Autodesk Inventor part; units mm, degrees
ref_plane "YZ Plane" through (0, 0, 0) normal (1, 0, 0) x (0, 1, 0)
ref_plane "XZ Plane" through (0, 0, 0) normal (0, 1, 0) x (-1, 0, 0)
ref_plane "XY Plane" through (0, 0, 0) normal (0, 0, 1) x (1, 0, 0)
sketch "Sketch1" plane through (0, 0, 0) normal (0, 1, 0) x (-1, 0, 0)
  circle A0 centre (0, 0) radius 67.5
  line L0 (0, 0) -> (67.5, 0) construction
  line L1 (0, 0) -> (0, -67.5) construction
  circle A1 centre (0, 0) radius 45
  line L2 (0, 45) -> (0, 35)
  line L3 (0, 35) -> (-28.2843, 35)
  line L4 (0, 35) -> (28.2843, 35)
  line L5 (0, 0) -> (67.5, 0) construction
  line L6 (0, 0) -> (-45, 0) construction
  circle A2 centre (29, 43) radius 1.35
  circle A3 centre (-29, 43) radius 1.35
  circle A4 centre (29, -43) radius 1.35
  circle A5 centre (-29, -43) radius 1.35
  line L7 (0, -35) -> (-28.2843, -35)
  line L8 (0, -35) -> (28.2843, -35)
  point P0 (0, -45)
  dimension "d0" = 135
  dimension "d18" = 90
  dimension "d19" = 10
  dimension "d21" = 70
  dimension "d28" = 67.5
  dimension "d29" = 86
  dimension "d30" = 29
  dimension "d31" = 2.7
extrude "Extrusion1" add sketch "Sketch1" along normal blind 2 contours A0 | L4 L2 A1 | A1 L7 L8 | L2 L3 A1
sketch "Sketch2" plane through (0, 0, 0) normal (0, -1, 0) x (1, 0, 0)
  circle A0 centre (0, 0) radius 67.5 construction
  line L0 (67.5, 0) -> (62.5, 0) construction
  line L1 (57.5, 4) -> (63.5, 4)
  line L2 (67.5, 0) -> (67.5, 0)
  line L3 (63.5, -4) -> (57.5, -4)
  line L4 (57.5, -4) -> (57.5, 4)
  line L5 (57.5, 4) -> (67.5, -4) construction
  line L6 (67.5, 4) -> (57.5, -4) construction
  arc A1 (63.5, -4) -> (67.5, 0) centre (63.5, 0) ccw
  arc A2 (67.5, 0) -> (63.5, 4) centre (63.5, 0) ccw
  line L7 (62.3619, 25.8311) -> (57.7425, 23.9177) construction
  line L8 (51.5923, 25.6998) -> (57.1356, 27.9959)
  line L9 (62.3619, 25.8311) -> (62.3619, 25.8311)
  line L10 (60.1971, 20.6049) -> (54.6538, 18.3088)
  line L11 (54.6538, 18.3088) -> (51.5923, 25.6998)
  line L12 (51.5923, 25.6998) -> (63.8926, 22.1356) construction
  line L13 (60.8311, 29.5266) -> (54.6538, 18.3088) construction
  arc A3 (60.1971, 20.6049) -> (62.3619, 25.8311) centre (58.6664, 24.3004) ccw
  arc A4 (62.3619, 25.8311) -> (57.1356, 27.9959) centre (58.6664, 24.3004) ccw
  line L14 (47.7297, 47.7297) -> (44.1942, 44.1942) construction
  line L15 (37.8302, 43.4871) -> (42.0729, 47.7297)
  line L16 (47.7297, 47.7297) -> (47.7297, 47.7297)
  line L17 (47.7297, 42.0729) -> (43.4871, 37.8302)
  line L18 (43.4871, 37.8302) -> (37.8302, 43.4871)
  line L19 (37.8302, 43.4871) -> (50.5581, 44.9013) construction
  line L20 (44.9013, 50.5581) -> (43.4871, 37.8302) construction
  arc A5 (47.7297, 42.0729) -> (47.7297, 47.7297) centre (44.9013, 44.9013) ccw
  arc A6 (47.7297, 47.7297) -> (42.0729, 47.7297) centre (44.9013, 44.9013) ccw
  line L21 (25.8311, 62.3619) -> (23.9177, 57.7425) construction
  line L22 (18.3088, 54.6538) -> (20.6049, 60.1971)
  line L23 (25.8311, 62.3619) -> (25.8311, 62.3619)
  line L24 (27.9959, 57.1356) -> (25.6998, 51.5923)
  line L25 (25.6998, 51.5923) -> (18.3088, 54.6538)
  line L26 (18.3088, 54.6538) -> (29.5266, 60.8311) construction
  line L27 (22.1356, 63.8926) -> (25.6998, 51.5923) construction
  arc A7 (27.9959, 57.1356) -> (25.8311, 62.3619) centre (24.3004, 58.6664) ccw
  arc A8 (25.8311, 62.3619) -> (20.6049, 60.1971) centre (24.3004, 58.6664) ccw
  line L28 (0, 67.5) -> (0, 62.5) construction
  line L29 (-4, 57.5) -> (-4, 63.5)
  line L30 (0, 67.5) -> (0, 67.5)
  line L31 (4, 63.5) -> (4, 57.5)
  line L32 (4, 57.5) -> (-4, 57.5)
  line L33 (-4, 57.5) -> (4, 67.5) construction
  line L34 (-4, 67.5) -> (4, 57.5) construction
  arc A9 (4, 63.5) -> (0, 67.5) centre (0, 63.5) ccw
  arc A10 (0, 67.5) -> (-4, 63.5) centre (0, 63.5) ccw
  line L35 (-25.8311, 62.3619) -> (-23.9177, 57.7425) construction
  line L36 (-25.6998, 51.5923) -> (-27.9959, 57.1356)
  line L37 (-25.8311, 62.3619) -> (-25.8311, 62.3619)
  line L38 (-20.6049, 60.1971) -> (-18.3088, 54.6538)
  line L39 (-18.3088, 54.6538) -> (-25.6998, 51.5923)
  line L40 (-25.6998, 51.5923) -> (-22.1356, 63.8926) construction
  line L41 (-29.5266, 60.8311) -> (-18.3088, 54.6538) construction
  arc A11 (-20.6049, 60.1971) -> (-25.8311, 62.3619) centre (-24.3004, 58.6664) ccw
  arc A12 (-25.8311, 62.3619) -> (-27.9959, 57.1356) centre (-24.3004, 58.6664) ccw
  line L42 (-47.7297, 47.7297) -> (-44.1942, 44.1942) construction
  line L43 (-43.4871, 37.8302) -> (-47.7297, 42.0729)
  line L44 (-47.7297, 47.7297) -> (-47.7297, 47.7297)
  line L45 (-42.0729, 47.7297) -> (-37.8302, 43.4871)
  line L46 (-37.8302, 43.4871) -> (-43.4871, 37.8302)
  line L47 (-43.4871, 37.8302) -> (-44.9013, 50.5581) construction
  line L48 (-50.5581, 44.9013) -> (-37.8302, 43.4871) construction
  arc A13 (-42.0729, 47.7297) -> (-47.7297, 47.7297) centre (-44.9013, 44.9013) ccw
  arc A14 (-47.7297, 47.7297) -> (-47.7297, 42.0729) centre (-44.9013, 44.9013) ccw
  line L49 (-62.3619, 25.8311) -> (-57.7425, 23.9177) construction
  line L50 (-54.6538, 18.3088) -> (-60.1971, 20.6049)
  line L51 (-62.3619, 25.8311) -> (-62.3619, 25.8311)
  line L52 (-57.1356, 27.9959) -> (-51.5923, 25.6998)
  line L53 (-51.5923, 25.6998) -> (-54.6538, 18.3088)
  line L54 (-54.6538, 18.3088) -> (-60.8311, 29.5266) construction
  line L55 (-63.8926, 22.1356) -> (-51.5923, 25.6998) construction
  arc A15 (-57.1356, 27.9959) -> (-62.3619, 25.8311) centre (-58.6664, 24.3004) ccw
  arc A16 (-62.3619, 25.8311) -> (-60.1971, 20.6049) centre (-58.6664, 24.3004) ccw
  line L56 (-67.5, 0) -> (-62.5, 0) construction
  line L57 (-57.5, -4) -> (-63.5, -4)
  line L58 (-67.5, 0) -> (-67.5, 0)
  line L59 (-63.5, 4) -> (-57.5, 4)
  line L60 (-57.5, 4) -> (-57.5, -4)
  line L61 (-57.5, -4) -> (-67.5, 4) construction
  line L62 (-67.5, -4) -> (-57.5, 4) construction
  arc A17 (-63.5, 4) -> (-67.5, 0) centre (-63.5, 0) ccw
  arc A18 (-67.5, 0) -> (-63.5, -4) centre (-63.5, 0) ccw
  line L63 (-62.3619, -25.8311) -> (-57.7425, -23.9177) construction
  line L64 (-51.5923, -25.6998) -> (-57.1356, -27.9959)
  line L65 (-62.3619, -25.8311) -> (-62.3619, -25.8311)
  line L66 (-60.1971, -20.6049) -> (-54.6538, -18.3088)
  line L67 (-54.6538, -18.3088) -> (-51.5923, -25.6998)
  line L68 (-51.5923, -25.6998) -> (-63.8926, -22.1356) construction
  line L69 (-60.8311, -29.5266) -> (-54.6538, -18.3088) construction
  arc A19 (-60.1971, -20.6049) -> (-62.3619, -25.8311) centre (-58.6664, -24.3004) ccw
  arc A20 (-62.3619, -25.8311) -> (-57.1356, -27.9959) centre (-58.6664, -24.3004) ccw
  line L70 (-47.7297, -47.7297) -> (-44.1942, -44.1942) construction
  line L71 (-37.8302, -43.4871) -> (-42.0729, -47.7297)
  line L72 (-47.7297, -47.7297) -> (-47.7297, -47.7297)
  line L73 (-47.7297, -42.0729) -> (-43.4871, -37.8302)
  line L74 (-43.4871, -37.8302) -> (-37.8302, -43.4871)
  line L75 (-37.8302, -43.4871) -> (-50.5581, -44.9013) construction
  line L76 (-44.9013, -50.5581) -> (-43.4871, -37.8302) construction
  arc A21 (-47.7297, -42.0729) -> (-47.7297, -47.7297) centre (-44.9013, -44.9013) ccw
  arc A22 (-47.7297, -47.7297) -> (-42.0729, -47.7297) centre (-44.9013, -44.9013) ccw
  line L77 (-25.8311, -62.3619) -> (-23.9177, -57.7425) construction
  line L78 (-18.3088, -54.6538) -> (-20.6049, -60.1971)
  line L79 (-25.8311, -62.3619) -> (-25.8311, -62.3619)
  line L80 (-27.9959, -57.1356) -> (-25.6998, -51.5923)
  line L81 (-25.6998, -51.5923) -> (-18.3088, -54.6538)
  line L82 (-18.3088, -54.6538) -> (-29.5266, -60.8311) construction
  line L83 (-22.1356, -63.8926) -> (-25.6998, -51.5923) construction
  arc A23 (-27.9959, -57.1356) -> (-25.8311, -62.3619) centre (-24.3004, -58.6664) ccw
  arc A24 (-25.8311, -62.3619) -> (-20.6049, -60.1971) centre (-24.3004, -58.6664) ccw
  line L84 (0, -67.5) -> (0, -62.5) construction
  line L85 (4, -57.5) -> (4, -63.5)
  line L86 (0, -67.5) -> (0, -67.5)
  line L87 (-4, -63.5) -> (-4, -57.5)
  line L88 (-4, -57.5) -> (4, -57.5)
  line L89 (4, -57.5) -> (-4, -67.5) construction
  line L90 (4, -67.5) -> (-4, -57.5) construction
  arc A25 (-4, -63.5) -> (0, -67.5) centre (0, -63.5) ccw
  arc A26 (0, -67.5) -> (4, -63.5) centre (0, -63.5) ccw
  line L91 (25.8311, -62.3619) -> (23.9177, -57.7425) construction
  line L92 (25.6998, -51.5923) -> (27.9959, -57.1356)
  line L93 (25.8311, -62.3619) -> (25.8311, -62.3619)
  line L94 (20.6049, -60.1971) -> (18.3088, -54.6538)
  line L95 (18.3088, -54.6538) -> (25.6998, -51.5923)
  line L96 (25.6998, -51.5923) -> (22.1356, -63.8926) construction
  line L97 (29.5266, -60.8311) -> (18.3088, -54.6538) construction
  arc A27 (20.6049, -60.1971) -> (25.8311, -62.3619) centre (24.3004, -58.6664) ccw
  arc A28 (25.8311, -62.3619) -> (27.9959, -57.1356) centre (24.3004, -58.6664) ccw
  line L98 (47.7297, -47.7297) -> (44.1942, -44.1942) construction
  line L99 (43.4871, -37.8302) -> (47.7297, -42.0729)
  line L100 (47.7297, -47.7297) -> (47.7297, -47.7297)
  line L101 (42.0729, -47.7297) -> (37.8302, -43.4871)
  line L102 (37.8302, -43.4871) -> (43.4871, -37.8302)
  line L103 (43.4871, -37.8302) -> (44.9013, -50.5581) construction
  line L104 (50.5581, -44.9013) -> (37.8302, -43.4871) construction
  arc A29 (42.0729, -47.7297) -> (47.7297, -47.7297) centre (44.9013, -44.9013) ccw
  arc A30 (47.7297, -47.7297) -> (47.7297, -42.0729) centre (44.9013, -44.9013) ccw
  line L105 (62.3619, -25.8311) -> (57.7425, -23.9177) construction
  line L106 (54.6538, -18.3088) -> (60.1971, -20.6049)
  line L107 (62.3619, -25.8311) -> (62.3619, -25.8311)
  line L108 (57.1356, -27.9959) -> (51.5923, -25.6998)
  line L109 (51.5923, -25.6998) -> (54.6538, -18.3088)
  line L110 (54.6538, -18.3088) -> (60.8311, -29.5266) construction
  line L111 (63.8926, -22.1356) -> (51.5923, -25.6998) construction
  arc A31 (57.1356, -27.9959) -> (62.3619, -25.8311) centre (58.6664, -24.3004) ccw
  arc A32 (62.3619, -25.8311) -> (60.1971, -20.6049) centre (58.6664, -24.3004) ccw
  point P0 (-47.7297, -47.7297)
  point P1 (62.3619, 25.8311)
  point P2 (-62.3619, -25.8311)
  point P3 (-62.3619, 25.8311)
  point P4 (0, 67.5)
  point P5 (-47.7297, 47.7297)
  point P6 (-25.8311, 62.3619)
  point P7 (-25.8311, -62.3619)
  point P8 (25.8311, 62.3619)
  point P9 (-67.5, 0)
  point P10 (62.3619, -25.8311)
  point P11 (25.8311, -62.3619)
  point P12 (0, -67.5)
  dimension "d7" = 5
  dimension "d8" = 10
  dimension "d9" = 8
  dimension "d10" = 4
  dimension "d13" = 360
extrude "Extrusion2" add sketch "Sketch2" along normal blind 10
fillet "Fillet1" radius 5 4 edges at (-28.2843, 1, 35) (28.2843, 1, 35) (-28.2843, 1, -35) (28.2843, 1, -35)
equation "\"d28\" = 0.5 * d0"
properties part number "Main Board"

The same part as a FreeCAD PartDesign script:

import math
import FreeCAD as App
import Part
import Sketcher
from FreeCAD import Vector
Q = App.Units.Quantity


def edges_at(feature, points):
    """Names of the edges that pass closest to the given points."""
    edges = feature.Shape.Edges
    near = lambda p: min(range(len(edges)), key=lambda i: edges[i].distToShape(Part.Vertex(*p))[0])
    return sorted({f"Edge{near(p) + 1}" for p in points})

doc = App.newDocument("Part")
body = doc.addObject("PartDesign::Body", "Body")

# Sketch on XZ plane
sketch1 = body.newObject("Sketcher::SketchObject", "Sketch")
sketch1.AttachmentSupport = (doc.getObject("XZ_Plane"), [""])
sketch1.MapMode = "FlatFace"
sketch1.addGeometry(Part.Circle(Vector(0, 0, 0), Vector(0, 0, 1), 67.5), False)
sketch1.addGeometry(Part.Circle(Vector(29, -43, 0), Vector(0, 0, 1), 1.4), False)
sketch1.addGeometry(Part.Circle(Vector(-29, -43, 0), Vector(0, 0, 1), 1.4), False)
sketch1.addGeometry(Part.Circle(Vector(29, 43, 0), Vector(0, 0, 1), 1.4), False)
sketch1.addGeometry(Part.ArcOfCircle(Part.Circle(Vector(0, 0, 0), Vector(0, 0, 1), 45), math.radians(129), math.radians(231)), False)
sketch1.addGeometry(Part.LineSegment(Vector(-28.3, -35, 0), Vector(28.3, -35, 0)), False)
sketch1.addGeometry(Part.ArcOfCircle(Part.Circle(Vector(0, 0, 0), Vector(0, 0, 1), 45), math.radians(-51), math.radians(51)), False)
sketch1.addGeometry(Part.LineSegment(Vector(28.3, 35, 0), Vector(-28.3, 35, 0)), False)
sketch1.addGeometry(Part.Circle(Vector(-29, 43, 0), Vector(0, 0, 1), 1.4), False)
sketch1.addConstraint(Sketcher.Constraint("Coincident", 4, 2, 5, 1))
sketch1.addConstraint(Sketcher.Constraint("Coincident", 5, 2, 6, 1))
sketch1.addConstraint(Sketcher.Constraint("Coincident", 6, 2, 7, 1))
sketch1.addConstraint(Sketcher.Constraint("Coincident", 7, 2, 4, 1))
sketch1.addConstraint(Sketcher.Constraint("Horizontal", 5))
sketch1.addConstraint(Sketcher.Constraint("Horizontal", 7))
sketch1.addConstraint(Sketcher.Constraint("Coincident", 0, 3, -1, 1))
sketch1.addConstraint(Sketcher.Constraint("Coincident", 4, 3, -1, 1))
sketch1.addConstraint(Sketcher.Constraint("Coincident", 6, 3, -1, 1))
sketch1.addConstraint(Sketcher.Constraint("Equal", 1, 2))
sketch1.addConstraint(Sketcher.Constraint("Equal", 2, 3))
sketch1.addConstraint(Sketcher.Constraint("Equal", 4, 6))
sketch1.addConstraint(Sketcher.Constraint("Equal", 3, 8))
sketch1.addConstraint(Sketcher.Constraint("Symmetric", 2, 3, 3, 3, -1, 1))
sketch1.addConstraint(Sketcher.Constraint("Symmetric", 1, 3, 8, 3, -1, 1))
sketch1.addConstraint(Sketcher.Constraint("Symmetric", 1, 3, 2, 3, -2))
sketch1.addConstraint(Sketcher.Constraint("Vertical", 5, 2, 6, 2))
sketch1.addConstraint(Sketcher.Constraint("Diameter", 0, 135.0))
sketch1.addConstraint(Sketcher.Constraint("Radius", 4, 45.0))
sketch1.addConstraint(Sketcher.Constraint("Diameter", 1, 2.7))
sketch1.addConstraint(Sketcher.Constraint("DistanceX", -1, 1, 1, 3, 29.0))
sketch1.addConstraint(Sketcher.Constraint("DistanceY", 1, 3, 3, 3, 86.0))
sketch1.addConstraint(Sketcher.Constraint("DistanceY", 4, 2, -1, 1, 35.0))
pad1 = body.newObject("PartDesign::Pad", "Pad")
pad1.Profile = sketch1
pad1.Length = 2
pad1.Reversed = True

# Sketch on XZ plane
sketch2 = body.newObject("Sketcher::SketchObject", "Sketch001")
sketch2.AttachmentSupport = (doc.getObject("XZ_Plane"), [""])
sketch2.MapMode = "FlatFace"
sketch2.addGeometry(Part.LineSegment(Vector(63.5, 4, 0), Vector(57.5, 4, 0)), False)
sketch2.addGeometry(Part.LineSegment(Vector(57.5, 4, 0), Vector(57.5, -4, 0)), False)
sketch2.addGeometry(Part.LineSegment(Vector(57.5, -4, 0), Vector(63.5, -4, 0)), False)
sketch2.addGeometry(Part.ArcOfCircle(Part.Circle(Vector(63.5, 0, 0), Vector(0, 0, 1), 4), math.radians(-90), math.radians(90)), False)
sketch2.addGeometry(Part.LineSegment(Vector(57.1, 28, 0), Vector(51.6, 25.7, 0)), False)
sketch2.addGeometry(Part.LineSegment(Vector(51.6, 25.7, 0), Vector(54.7, 18.3, 0)), False)
sketch2.addGeometry(Part.LineSegment(Vector(54.7, 18.3, 0), Vector(60.2, 20.6, 0)), False)
sketch2.addGeometry(Part.ArcOfCircle(Part.Circle(Vector(58.7, 24.3, 0), Vector(0, 0, 1), 4), math.radians(-68), math.radians(22)), False)
sketch2.addGeometry(Part.ArcOfCircle(Part.Circle(Vector(58.7, 24.3, 0), Vector(0, 0, 1), 4), math.radians(22), math.radians(113)), False)
sketch2.addGeometry(Part.LineSegment(Vector(42.1, 47.7, 0), Vector(37.8, 43.5, 0)), False)
sketch2.addGeometry(Part.LineSegment(Vector(37.8, 43.5, 0), Vector(43.5, 37.8, 0)), False)
sketch2.addGeometry(Part.LineSegment(Vector(43.5, 37.8, 0), Vector(47.7, 42.1, 0)), False)
sketch2.addGeometry(Part.ArcOfCircle(Part.Circle(Vector(44.9, 44.9, 0), Vector(0, 0, 1), 4), math.radians(-45), math.radians(135)), False)
sketch2.addGeometry(Part.LineSegment(Vector(20.6, 60.2, 0), Vector(18.3, 54.7, 0)), False)
sketch2.addGeometry(Part.LineSegment(Vector(18.3, 54.7, 0), Vector(25.7, 51.6, 0)), False)
sketch2.addGeometry(Part.LineSegment(Vector(25.7, 51.6, 0), Vector(28, 57.1, 0)), False)
sketch2.addGeometry(Part.ArcOfCircle(Part.Circle(Vector(24.3, 58.7, 0), Vector(0, 0, 1), 4), math.radians(-23), math.radians(68)), False)
sketch2.addGeometry(Part.ArcOfCircle(Part.Circle(Vector(24.3, 58.7, 0), Vector(0, 0, 1), 4), math.radians(68), math.radians(158)), False)
sketch2.addGeometry(Part.LineSegment(Vector(-4, 63.5, 0), Vector(-4, 57.5, 0)), False)
sketch2.addGeometry(Part.LineSegment(Vector(-4, 57.5, 0), Vector(4, 57.5, 0)), False)
sketch2.addGeometry(Part.LineSegment(Vector(4, 57.5, 0), Vector(4, 63.5, 0)), False)
sketch2.addGeometry(Part.ArcOfCircle(Part.Circle(Vector(0, 63.5, 0), Vector(0, 0, 1), 4), math.radians(0), math.radians(180)), False)
sketch2.addGeometry(Part.LineSegment(Vector(-28, 57.1, 0), Vector(-25.7, 51.6, 0)), False)
sketch2.addGeometry(Part.LineSegment(Vector(-25.7, 51.6, 0), Vector(-18.3, 54.7, 0)), False)
sketch2.addGeometry(Part.LineSegment(Vector(-18.3, 54.7, 0), Vector(-20.6, 60.2, 0)), False)
sketch2.addGeometry(Part.ArcOfCircle(Part.Circle(Vector(-24.3, 58.7, 0), Vector(0, 0, 1), 4), math.radians(22), math.radians(112)), False)
sketch2.addGeometry(Part.ArcOfCircle(Part.Circle(Vector(-24.3, 58.7, 0), Vector(0, 0, 1), 4), math.radians(112), math.radians(203)), False)
sketch2.addGeometry(Part.LineSegment(Vector(-47.7, 42.1, 0), Vector(-43.5, 37.8, 0)), False)
sketch2.addGeometry(Part.LineSegment(Vector(-43.5, 37.8, 0), Vector(-37.8, 43.5, 0)), False)
sketch2.addGeometry(Part.LineSegment(Vector(-37.8, 43.5, 0), Vector(-42.1, 47.7, 0)), False)
sketch2.addGeometry(Part.ArcOfCircle(Part.Circle(Vector(-44.9, 44.9, 0), Vector(0, 0, 1), 4), math.radians(45), math.radians(225)), False)
sketch2.addGeometry(Part.LineSegment(Vector(-60.2, 20.6, 0), Vector(-54.7, 18.3, 0)), False)
sketch2.addGeometry(Part.LineSegment(Vector(-54.7, 18.3, 0), Vector(-51.6, 25.7, 0)), False)
sketch2.addGeometry(Part.LineSegment(Vector(-51.6, 25.7, 0), Vector(-57.1, 28, 0)), False)
sketch2.addGeometry(Part.ArcOfCircle(Part.Circle(Vector(-58.7, 24.3, 0), Vector(0, 0, 1), 4), math.radians(67), math.radians(158)), False)
sketch2.addGeometry(Part.ArcOfCircle(Part.Circle(Vector(-58.7, 24.3, 0), Vector(0, 0, 1), 4), math.radians(158), math.radians(248)), False)
sketch2.addGeometry(Part.LineSegment(Vector(-63.5, -4, 0), Vector(-57.5, -4, 0)), False)
sketch2.addGeometry(Part.LineSegment(Vector(-57.5, -4, 0), Vector(-57.5, 4, 0)), False)
sketch2.addGeometry(Part.LineSegment(Vector(-57.5, 4, 0), Vector(-63.5, 4, 0)), False)
sketch2.addGeometry(Part.ArcOfCircle(Part.Circle(Vector(-63.5, 0, 0), Vector(0, 0, 1), 4), math.radians(90), math.radians(270)), False)
sketch2.addGeometry(Part.LineSegment(Vector(-57.1, -28, 0), Vector(-51.6, -25.7, 0)), False)
sketch2.addGeometry(Part.LineSegment(Vector(-51.6, -25.7, 0), Vector(-54.7, -18.3, 0)), False)
sketch2.addGeometry(Part.LineSegment(Vector(-54.7, -18.3, 0), Vector(-60.2, -20.6, 0)), False)
sketch2.addGeometry(Part.ArcOfCircle(Part.Circle(Vector(-58.7, -24.3, 0), Vector(0, 0, 1), 4), math.radians(112), math.radians(202)), False)
sketch2.addGeometry(Part.ArcOfCircle(Part.Circle(Vector(-58.7, -24.3, 0), Vector(0, 0, 1), 4), math.radians(-158), math.radians(-67)), False)
sketch2.addGeometry(Part.LineSegment(Vector(-42.1, -47.7, 0), Vector(-37.8, -43.5, 0)), False)
sketch2.addGeometry(Part.LineSegment(Vector(-37.8, -43.5, 0), Vector(-43.5, -37.8, 0)), False)
sketch2.addGeometry(Part.LineSegment(Vector(-43.5, -37.8, 0), Vector(-47.7, -42.1, 0)), False)
sketch2.addGeometry(Part.ArcOfCircle(Part.Circle(Vector(-44.9, -44.9, 0), Vector(0, 0, 1), 4), math.radians(135), math.radians(315)), False)
sketch2.addGeometry(Part.LineSegment(Vector(-20.6, -60.2, 0), Vector(-18.3, -54.7, 0)), False)
sketch2.addGeometry(Part.LineSegment(Vector(-18.3, -54.7, 0), Vector(-25.7, -51.6, 0)), False)
sketch2.addGeometry(Part.LineSegment(Vector(-25.7, -51.6, 0), Vector(-28, -57.1, 0)), False)
sketch2.addGeometry(Part.ArcOfCircle(Part.Circle(Vector(-24.3, -58.7, 0), Vector(0, 0, 1), 4), math.radians(157), math.radians(248)), False)
sketch2.addGeometry(Part.ArcOfCircle(Part.Circle(Vector(-24.3, -58.7, 0), Vector(0, 0, 1), 4), math.radians(-112), math.radians(-22)), False)
sketch2.addGeometry(Part.LineSegment(Vector(4, -63.5, 0), Vector(4, -57.5, 0)), False)
sketch2.addGeometry(Part.LineSegment(Vector(4, -57.5, 0), Vector(-4, -57.5, 0)), False)
sketch2.addGeometry(Part.LineSegment(Vector(-4, -57.5, 0), Vector(-4, -63.5, 0)), False)
sketch2.addGeometry(Part.ArcOfCircle(Part.Circle(Vector(0, -63.5, 0), Vector(0, 0, 1), 4), math.radians(180), math.radians(360)), False)
sketch2.addGeometry(Part.LineSegment(Vector(28, -57.1, 0), Vector(25.7, -51.6, 0)), False)
sketch2.addGeometry(Part.LineSegment(Vector(25.7, -51.6, 0), Vector(18.3, -54.7, 0)), False)
sketch2.addGeometry(Part.LineSegment(Vector(18.3, -54.7, 0), Vector(20.6, -60.2, 0)), False)
sketch2.addGeometry(Part.ArcOfCircle(Part.Circle(Vector(24.3, -58.7, 0), Vector(0, 0, 1), 4), math.radians(-158), math.radians(-68)), False)
sketch2.addGeometry(Part.ArcOfCircle(Part.Circle(Vector(24.3, -58.7, 0), Vector(0, 0, 1), 4), math.radians(-68), math.radians(23)), False)
sketch2.addGeometry(Part.LineSegment(Vector(47.7, -42.1, 0), Vector(43.5, -37.8, 0)), False)
sketch2.addGeometry(Part.LineSegment(Vector(43.5, -37.8, 0), Vector(37.8, -43.5, 0)), False)
sketch2.addGeometry(Part.LineSegment(Vector(37.8, -43.5, 0), Vector(42.1, -47.7, 0)), False)
sketch2.addGeometry(Part.ArcOfCircle(Part.Circle(Vector(44.9, -44.9, 0), Vector(0, 0, 1), 4), math.radians(-135), math.radians(45)), False)
sketch2.addGeometry(Part.LineSegment(Vector(60.2, -20.6, 0), Vector(54.7, -18.3, 0)), False)
sketch2.addGeometry(Part.LineSegment(Vector(54.7, -18.3, 0), Vector(51.6, -25.7, 0)), False)
sketch2.addGeometry(Part.LineSegment(Vector(51.6, -25.7, 0), Vector(57.1, -28, 0)), False)
sketch2.addGeometry(Part.ArcOfCircle(Part.Circle(Vector(58.7, -24.3, 0), Vector(0, 0, 1), 4), math.radians(-113), math.radians(-22)), False)
sketch2.addGeometry(Part.ArcOfCircle(Part.Circle(Vector(58.7, -24.3, 0), Vector(0, 0, 1), 4), math.radians(-22), math.radians(68)), False)
sketch2.addConstraint(Sketcher.Constraint("Coincident", 0, 2, 1, 1))
sketch2.addConstraint(Sketcher.Constraint("Coincident", 1, 2, 2, 1))
sketch2.addConstraint(Sketcher.Constraint("Tangent", 2, 2, 3, 1))
sketch2.addConstraint(Sketcher.Constraint("Tangent", 3, 2, 0, 1))
sketch2.addConstraint(Sketcher.Constraint("Coincident", 4, 2, 5, 1))
sketch2.addConstraint(Sketcher.Constraint("Coincident", 5, 2, 6, 1))
sketch2.addConstraint(Sketcher.Constraint("Tangent", 6, 2, 7, 1))
sketch2.addConstraint(Sketcher.Constraint("Tangent", 7, 2, 8, 1))
sketch2.addConstraint(Sketcher.Constraint("Tangent", 8, 2, 4, 1))
sketch2.addConstraint(Sketcher.Constraint("Coincident", 9, 2, 10, 1))
sketch2.addConstraint(Sketcher.Constraint("Coincident", 10, 2, 11, 1))
sketch2.addConstraint(Sketcher.Constraint("Tangent", 11, 2, 12, 1))
sketch2.addConstraint(Sketcher.Constraint("Tangent", 12, 2, 9, 1))
sketch2.addConstraint(Sketcher.Constraint("Coincident", 13, 2, 14, 1))
sketch2.addConstraint(Sketcher.Constraint("Coincident", 14, 2, 15, 1))
sketch2.addConstraint(Sketcher.Constraint("Tangent", 15, 2, 16, 1))
sketch2.addConstraint(Sketcher.Constraint("Tangent", 16, 2, 17, 1))
sketch2.addConstraint(Sketcher.Constraint("Tangent", 17, 2, 13, 1))
sketch2.addConstraint(Sketcher.Constraint("Coincident", 18, 2, 19, 1))
sketch2.addConstraint(Sketcher.Constraint("Coincident", 19, 2, 20, 1))
sketch2.addConstraint(Sketcher.Constraint("Tangent", 20, 2, 21, 1))
sketch2.addConstraint(Sketcher.Constraint("Tangent", 21, 2, 18, 1))
sketch2.addConstraint(Sketcher.Constraint("Coincident", 22, 2, 23, 1))
sketch2.addConstraint(Sketcher.Constraint("Coincident", 23, 2, 24, 1))
sketch2.addConstraint(Sketcher.Constraint("Tangent", 24, 2, 25, 1))
sketch2.addConstraint(Sketcher.Constraint("Tangent", 25, 2, 26, 1))
sketch2.addConstraint(Sketcher.Constraint("Tangent", 26, 2, 22, 1))
sketch2.addConstraint(Sketcher.Constraint("Coincident", 27, 2, 28, 1))
sketch2.addConstraint(Sketcher.Constraint("Coincident", 28, 2, 29, 1))
sketch2.addConstraint(Sketcher.Constraint("Tangent", 29, 2, 30, 1))
sketch2.addConstraint(Sketcher.Constraint("Tangent", 30, 2, 27, 1))
sketch2.addConstraint(Sketcher.Constraint("Coincident", 31, 2, 32, 1))
sketch2.addConstraint(Sketcher.Constraint("Coincident", 32, 2, 33, 1))
sketch2.addConstraint(Sketcher.Constraint("Tangent", 33, 2, 34, 1))
sketch2.addConstraint(Sketcher.Constraint("Tangent", 34, 2, 35, 1))
sketch2.addConstraint(Sketcher.Constraint("Tangent", 35, 2, 31, 1))
sketch2.addConstraint(Sketcher.Constraint("Coincident", 36, 2, 37, 1))
sketch2.addConstraint(Sketcher.Constraint("Coincident", 37, 2, 38, 1))
sketch2.addConstraint(Sketcher.Constraint("Tangent", 38, 2, 39, 1))
sketch2.addConstraint(Sketcher.Constraint("Tangent", 39, 2, 36, 1))
sketch2.addConstraint(Sketcher.Constraint("Coincident", 40, 2, 41, 1))
sketch2.addConstraint(Sketcher.Constraint("Coincident", 41, 2, 42, 1))
sketch2.addConstraint(Sketcher.Constraint("Tangent", 42, 2, 43, 1))
sketch2.addConstraint(Sketcher.Constraint("Tangent", 43, 2, 44, 1))
sketch2.addConstraint(Sketcher.Constraint("Tangent", 44, 2, 40, 1))
sketch2.addConstraint(Sketcher.Constraint("Coincident", 45, 2, 46, 1))
sketch2.addConstraint(Sketcher.Constraint("Coincident", 46, 2, 47, 1))
sketch2.addConstraint(Sketcher.Constraint("Tangent", 47, 2, 48, 1))
sketch2.addConstraint(Sketcher.Constraint("Tangent", 48, 2, 45, 1))
sketch2.addConstraint(Sketcher.Constraint("Coincident", 49, 2, 50, 1))
sketch2.addConstraint(Sketcher.Constraint("Coincident", 50, 2, 51, 1))
sketch2.addConstraint(Sketcher.Constraint("Tangent", 51, 2, 52, 1))
sketch2.addConstraint(Sketcher.Constraint("Tangent", 52, 2, 53, 1))
sketch2.addConstraint(Sketcher.Constraint("Tangent", 53, 2, 49, 1))
sketch2.addConstraint(Sketcher.Constraint("Coincident", 54, 2, 55, 1))
sketch2.addConstraint(Sketcher.Constraint("Coincident", 55, 2, 56, 1))
sketch2.addConstraint(Sketcher.Constraint("Tangent", 56, 2, 57, 1))
sketch2.addConstraint(Sketcher.Constraint("Tangent", 57, 2, 54, 1))
sketch2.addConstraint(Sketcher.Constraint("Coincident", 58, 2, 59, 1))
sketch2.addConstraint(Sketcher.Constraint("Coincident", 59, 2, 60, 1))
sketch2.addConstraint(Sketcher.Constraint("Tangent", 60, 2, 61, 1))
sketch2.addConstraint(Sketcher.Constraint("Tangent", 61, 2, 62, 1))
sketch2.addConstraint(Sketcher.Constraint("Tangent", 62, 2, 58, 1))
sketch2.addConstraint(Sketcher.Constraint("Coincident", 63, 2, 64, 1))
sketch2.addConstraint(Sketcher.Constraint("Coincident", 64, 2, 65, 1))
sketch2.addConstraint(Sketcher.Constraint("Tangent", 65, 2, 66, 1))
sketch2.addConstraint(Sketcher.Constraint("Tangent", 66, 2, 63, 1))
sketch2.addConstraint(Sketcher.Constraint("Coincident", 67, 2, 68, 1))
sketch2.addConstraint(Sketcher.Constraint("Coincident", 68, 2, 69, 1))
sketch2.addConstraint(Sketcher.Constraint("Tangent", 69, 2, 70, 1))
sketch2.addConstraint(Sketcher.Constraint("Tangent", 70, 2, 71, 1))
sketch2.addConstraint(Sketcher.Constraint("Tangent", 71, 2, 67, 1))
sketch2.addConstraint(Sketcher.Constraint("Horizontal", 0))
sketch2.addConstraint(Sketcher.Constraint("Vertical", 1))
sketch2.addConstraint(Sketcher.Constraint("Horizontal", 2))
sketch2.addConstraint(Sketcher.Constraint("Vertical", 18))
sketch2.addConstraint(Sketcher.Constraint("Horizontal", 19))
sketch2.addConstraint(Sketcher.Constraint("Vertical", 20))
sketch2.addConstraint(Sketcher.Constraint("Horizontal", 36))
sketch2.addConstraint(Sketcher.Constraint("Vertical", 37))
sketch2.addConstraint(Sketcher.Constraint("Horizontal", 38))
sketch2.addConstraint(Sketcher.Constraint("Vertical", 54))
sketch2.addConstraint(Sketcher.Constraint("Horizontal", 55))
sketch2.addConstraint(Sketcher.Constraint("Vertical", 56))
sketch2.addConstraint(Sketcher.Constraint("Equal", 3, 7))
sketch2.addConstraint(Sketcher.Constraint("Equal", 7, 8))
sketch2.addConstraint(Sketcher.Constraint("Equal", 8, 12))
sketch2.addConstraint(Sketcher.Constraint("Equal", 12, 16))
sketch2.addConstraint(Sketcher.Constraint("Equal", 16, 17))
sketch2.addConstraint(Sketcher.Constraint("Equal", 17, 21))
sketch2.addConstraint(Sketcher.Constraint("Equal", 21, 25))
sketch2.addConstraint(Sketcher.Constraint("Equal", 25, 26))
sketch2.addConstraint(Sketcher.Constraint("Equal", 26, 30))
sketch2.addConstraint(Sketcher.Constraint("Equal", 30, 34))
sketch2.addConstraint(Sketcher.Constraint("Equal", 34, 35))
sketch2.addConstraint(Sketcher.Constraint("Equal", 35, 39))
sketch2.addConstraint(Sketcher.Constraint("Equal", 39, 43))
sketch2.addConstraint(Sketcher.Constraint("Equal", 43, 44))
sketch2.addConstraint(Sketcher.Constraint("Equal", 44, 48))
sketch2.addConstraint(Sketcher.Constraint("Equal", 48, 52))
sketch2.addConstraint(Sketcher.Constraint("Equal", 52, 53))
sketch2.addConstraint(Sketcher.Constraint("Equal", 53, 57))
sketch2.addConstraint(Sketcher.Constraint("Equal", 57, 61))
sketch2.addConstraint(Sketcher.Constraint("Equal", 61, 62))
sketch2.addConstraint(Sketcher.Constraint("Equal", 62, 66))
sketch2.addConstraint(Sketcher.Constraint("Equal", 66, 70))
sketch2.addConstraint(Sketcher.Constraint("Equal", 70, 71))
sketch2.addConstraint(Sketcher.Constraint("Symmetric", 3, 3, 39, 3, -1, 1))
sketch2.addConstraint(Sketcher.Constraint("Symmetric", 7, 3, 43, 3, -1, 1))
sketch2.addConstraint(Sketcher.Constraint("Symmetric", 12, 3, 48, 3, -1, 1))
sketch2.addConstraint(Sketcher.Constraint("Symmetric", 16, 3, 52, 3, -1, 1))
sketch2.addConstraint(Sketcher.Constraint("Symmetric", 21, 3, 57, 3, -1, 1))
sketch2.addConstraint(Sketcher.Constraint("Symmetric", 25, 3, 61, 3, -1, 1))
sketch2.addConstraint(Sketcher.Constraint("Symmetric", 30, 3, 66, 3, -1, 1))
sketch2.addConstraint(Sketcher.Constraint("Symmetric", 34, 3, 70, 3, -1, 1))
sketch2.addConstraint(Sketcher.Constraint("Symmetric", 4, 2, 40, 2, -1, 1))
sketch2.addConstraint(Sketcher.Constraint("Symmetric", 5, 2, 41, 2, -1, 1))
sketch2.addConstraint(Sketcher.Constraint("Symmetric", 9, 2, 45, 2, -1, 1))
sketch2.addConstraint(Sketcher.Constraint("Symmetric", 10, 2, 46, 2, -1, 1))
sketch2.addConstraint(Sketcher.Constraint("Symmetric", 13, 2, 49, 2, -1, 1))
sketch2.addConstraint(Sketcher.Constraint("Symmetric", 14, 2, 50, 2, -1, 1))
sketch2.addConstraint(Sketcher.Constraint("Symmetric", 22, 2, 58, 2, -1, 1))
sketch2.addConstraint(Sketcher.Constraint("Symmetric", 23, 2, 59, 2, -1, 1))
sketch2.addConstraint(Sketcher.Constraint("Symmetric", 27, 2, 63, 2, -1, 1))
sketch2.addConstraint(Sketcher.Constraint("Symmetric", 28, 2, 64, 2, -1, 1))
sketch2.addConstraint(Sketcher.Constraint("Symmetric", 31, 2, 67, 2, -1, 1))
sketch2.addConstraint(Sketcher.Constraint("Symmetric", 32, 2, 68, 2, -1, 1))
sketch2.addConstraint(Sketcher.Constraint("Symmetric", 16, 3, 25, 3, -2))
sketch2.addConstraint(Sketcher.Constraint("Symmetric", 12, 3, 30, 3, -2))
sketch2.addConstraint(Sketcher.Constraint("Symmetric", 7, 3, 34, 3, -2))
sketch2.addConstraint(Sketcher.Constraint("Symmetric", 14, 2, 22, 2, -2))
sketch2.addConstraint(Sketcher.Constraint("Symmetric", 13, 2, 23, 2, -2))
sketch2.addConstraint(Sketcher.Constraint("Symmetric", 10, 2, 27, 2, -2))
sketch2.addConstraint(Sketcher.Constraint("Symmetric", 9, 2, 28, 2, -2))
sketch2.addConstraint(Sketcher.Constraint("Symmetric", 5, 2, 31, 2, -2))
sketch2.addConstraint(Sketcher.Constraint("Symmetric", 4, 2, 32, 2, -2))
sketch2.addConstraint(Sketcher.Constraint("Symmetric", 1, 2, 36, 2, -2))
sketch2.addConstraint(Sketcher.Constraint("Symmetric", 19, 2, 54, 2, -1))
sketch2.addConstraint(Sketcher.Constraint("Perpendicular", 4, 5))
sketch2.addConstraint(Sketcher.Constraint("Perpendicular", 5, 6))
sketch2.addConstraint(Sketcher.Constraint("Perpendicular", 9, 10))
sketch2.addConstraint(Sketcher.Constraint("Perpendicular", 10, 11))
sketch2.addConstraint(Sketcher.Constraint("Perpendicular", 13, 14))
sketch2.addConstraint(Sketcher.Constraint("Perpendicular", 14, 15))
sketch2.addConstraint(Sketcher.Constraint("Perpendicular", 6, 22))
sketch2.addConstraint(Sketcher.Constraint("Perpendicular", 11, 27))
sketch2.addConstraint(Sketcher.Constraint("Horizontal", 16, 2, 25, 2))
sketch2.addConstraint(Sketcher.Constraint("Horizontal", 7, 2, 34, 2))
sketch2.addConstraint(Sketcher.Constraint("Horizontal", 52, 2, 61, 2))
sketch2.addConstraint(Sketcher.Constraint("Horizontal", 43, 2, 70, 2))
sketch2.addConstraint(Sketcher.Constraint("Vertical", 34, 2, 43, 2))
sketch2.addConstraint(Sketcher.Constraint("Vertical", 25, 2, 52, 2))
sketch2.addConstraint(Sketcher.Constraint("Equal", 38, 18))
sketch2.addConstraint(Sketcher.Constraint("Equal", 6, 9))
sketch2.addConstraint(Sketcher.Constraint("Equal", 11, 13))
sketch2.addConstraint(Sketcher.Constraint("Radius", 3, 4.0))
sketch2.addConstraint(Sketcher.Constraint("DistanceX", 0, 2, 0, 1, 6.0))
sketch2.addConstraint(Sketcher.Constraint("Distance", 4, 6.0))
sketch2.addConstraint(Sketcher.Constraint("Angle", 4, Q("-157.5 deg")))
sketch2.addConstraint(Sketcher.Constraint("DistanceX", -1, 1, 3, 3, 63.5))
sketch2.addConstraint(Sketcher.Constraint("DistanceY", -1, 1, 21, 3, 63.5))
sketch2.addConstraint(Sketcher.Constraint("DistanceX", -1, 1, 6, 2, 60.197))
sketch2.addConstraint(Sketcher.Constraint("DistanceY", -1, 1, 6, 2, 20.605))
sketch2.addConstraint(Sketcher.Constraint("DistanceX", -1, 1, 7, 2, 62.362))
sketch2.addConstraint(Sketcher.Constraint("DistanceY", -1, 1, 9, 2, 43.487))
sketch2.addConstraint(Sketcher.Constraint("DistanceX", -1, 1, 10, 2, 43.487))
sketch2.addConstraint(Sketcher.Constraint("DistanceX", -1, 1, 15, 2, 27.996))
sketch2.addConstraint(Sketcher.Constraint("DistanceX", -1, 1, 16, 2, 25.831))
sketch2.addConstraint(Sketcher.Constraint("DistanceY", -1, 1, 16, 2, 62.362))
pad2 = body.newObject("PartDesign::Pad", "Pad001")
pad2.Profile = sketch2
pad2.Length = 10
doc.recompute()

fillet = body.newObject("PartDesign::Fillet", "Fillet")
fillet.Base = (pad2, edges_at(pad2, [
    (-28.284, 1, 35),
    (28.284, 1, 35),
    (-28.284, 1, -35),
    (28.284, 1, -35),
]))
fillet.Radius = 5

doc.recompute()
